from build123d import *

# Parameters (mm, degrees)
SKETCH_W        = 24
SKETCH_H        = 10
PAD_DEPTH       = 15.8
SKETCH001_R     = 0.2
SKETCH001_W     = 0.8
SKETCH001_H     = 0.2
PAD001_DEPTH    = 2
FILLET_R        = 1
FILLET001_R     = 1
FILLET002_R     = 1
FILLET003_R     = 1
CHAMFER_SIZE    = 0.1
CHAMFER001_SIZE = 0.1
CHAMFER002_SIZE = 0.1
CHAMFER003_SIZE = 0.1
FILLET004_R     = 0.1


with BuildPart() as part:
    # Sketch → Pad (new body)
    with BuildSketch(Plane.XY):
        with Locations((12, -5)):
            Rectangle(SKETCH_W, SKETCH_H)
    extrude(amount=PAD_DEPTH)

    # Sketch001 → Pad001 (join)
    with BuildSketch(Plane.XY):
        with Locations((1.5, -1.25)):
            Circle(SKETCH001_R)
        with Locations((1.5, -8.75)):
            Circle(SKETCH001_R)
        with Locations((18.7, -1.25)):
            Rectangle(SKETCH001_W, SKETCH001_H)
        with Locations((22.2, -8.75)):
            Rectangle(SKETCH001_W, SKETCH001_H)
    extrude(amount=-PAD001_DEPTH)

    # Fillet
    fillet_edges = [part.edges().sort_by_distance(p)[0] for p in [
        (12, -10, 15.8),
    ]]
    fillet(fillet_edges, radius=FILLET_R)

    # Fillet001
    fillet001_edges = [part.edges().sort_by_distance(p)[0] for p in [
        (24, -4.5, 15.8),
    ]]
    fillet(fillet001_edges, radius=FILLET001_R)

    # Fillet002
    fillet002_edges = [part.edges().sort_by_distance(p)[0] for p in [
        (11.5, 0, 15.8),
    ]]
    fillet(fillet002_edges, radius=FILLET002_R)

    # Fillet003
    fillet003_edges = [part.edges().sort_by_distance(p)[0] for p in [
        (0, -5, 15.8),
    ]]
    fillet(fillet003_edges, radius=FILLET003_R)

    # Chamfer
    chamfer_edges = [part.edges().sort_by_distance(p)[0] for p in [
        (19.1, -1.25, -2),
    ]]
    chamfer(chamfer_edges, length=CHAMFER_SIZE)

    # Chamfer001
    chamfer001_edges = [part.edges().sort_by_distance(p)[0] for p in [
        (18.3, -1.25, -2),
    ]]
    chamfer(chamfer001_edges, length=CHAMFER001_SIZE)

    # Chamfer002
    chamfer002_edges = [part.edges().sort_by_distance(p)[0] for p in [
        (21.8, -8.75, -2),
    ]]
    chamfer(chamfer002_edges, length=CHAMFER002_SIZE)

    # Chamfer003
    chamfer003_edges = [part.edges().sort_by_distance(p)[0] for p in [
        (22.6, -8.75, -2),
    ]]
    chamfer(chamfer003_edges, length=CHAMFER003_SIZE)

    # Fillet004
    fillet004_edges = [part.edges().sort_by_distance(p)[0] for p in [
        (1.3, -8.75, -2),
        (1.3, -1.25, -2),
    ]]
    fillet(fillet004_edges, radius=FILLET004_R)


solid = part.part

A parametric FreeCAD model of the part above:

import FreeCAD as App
import Part
import Sketcher
from FreeCAD import Vector


def edges_at(feature, points):
    """Names of the edges that pass closest to the given points."""
    edges = feature.Shape.Edges
    near = lambda p: min(range(len(edges)), key=lambda i: edges[i].distToShape(Part.Vertex(*p))[0])
    return sorted({f"Edge{near(p) + 1}" for p in points})

doc = App.newDocument("Part")
body = doc.addObject("PartDesign::Body", "Body")

# Sketch on XY plane
sketch1 = body.newObject("Sketcher::SketchObject", "Sketch")
sketch1.AttachmentSupport = (doc.getObject("XY_Plane"), [""])
sketch1.MapMode = "FlatFace"
sketch1.addGeometry([
    Part.LineSegment(Vector(0, 0, 0), Vector(0, -10, 0)),
    Part.LineSegment(Vector(0, -10, 0), Vector(24, -10, 0)),
    Part.LineSegment(Vector(24, -10, 0), Vector(24, 0, 0)),
    Part.LineSegment(Vector(24, 0, 0), Vector(0, 0, 0)),
], False)
sketch1.addConstraint([
    Sketcher.Constraint("Coincident", 0, 2, 1, 1),
    Sketcher.Constraint("Coincident", 1, 2, 2, 1),
    Sketcher.Constraint("Coincident", 2, 2, 3, 1),
    Sketcher.Constraint("Coincident", 3, 2, 0, 1),
    Sketcher.Constraint("Vertical", 0),
    Sketcher.Constraint("Horizontal", 1),
    Sketcher.Constraint("Vertical", 2),
    Sketcher.Constraint("Horizontal", 3),
    Sketcher.Constraint("Coincident", 3, 2, -1, 1),
    Sketcher.Constraint("DistanceX", 1, 1, 1, 2, 24.0),
    Sketcher.Constraint("DistanceY", 0, 2, 0, 1, 10.0),
])
pad1 = body.newObject("PartDesign::Pad", "Pad")
pad1.Profile = sketch1
pad1.Length = 15.8

# Sketch on XY plane
sketch2 = body.newObject("Sketcher::SketchObject", "Sketch001")
sketch2.AttachmentSupport = (doc.getObject("XY_Plane"), [""])
sketch2.MapMode = "FlatFace"
sketch2.addGeometry([
    Part.Circle(Vector(1.5, -1.25, 0), Vector(0, 0, 1), 0.2),  # 0
    Part.Circle(Vector(1.5, -8.75, 0), Vector(0, 0, 1), 0.2),  # 1
    Part.LineSegment(Vector(18.3, -1.15, 0), Vector(18.3, -1.35, 0)),  # 2
    Part.LineSegment(Vector(18.3, -1.35, 0), Vector(19.1, -1.35, 0)),  # 3
    Part.LineSegment(Vector(19.1, -1.35, 0), Vector(19.1, -1.15, 0)),  # 4
    Part.LineSegment(Vector(19.1, -1.15, 0), Vector(18.3, -1.15, 0)),  # 5
    Part.LineSegment(Vector(21.8, -8.65, 0), Vector(21.8, -8.85, 0)),  # 6
    Part.LineSegment(Vector(21.8, -8.85, 0), Vector(22.6, -8.85, 0)),  # 7
    Part.LineSegment(Vector(22.6, -8.85, 0), Vector(22.6, -8.65, 0)),  # 8
    Part.LineSegment(Vector(22.6, -8.65, 0), Vector(21.8, -8.65, 0)),  # 9
], False)
sketch2.addConstraint([
    Sketcher.Constraint("Coincident", 2, 2, 3, 1),
    Sketcher.Constraint("Coincident", 3, 2, 4, 1),
    Sketcher.Constraint("Coincident", 4, 2, 5, 1),
    Sketcher.Constraint("Coincident", 5, 2, 2, 1),
    Sketcher.Constraint("Coincident", 6, 2, 7, 1),
    Sketcher.Constraint("Coincident", 7, 2, 8, 1),
    Sketcher.Constraint("Coincident", 8, 2, 9, 1),
    Sketcher.Constraint("Coincident", 9, 2, 6, 1),
    Sketcher.Constraint("Vertical", 2),
    Sketcher.Constraint("Horizontal", 3),
    Sketcher.Constraint("Vertical", 4),
    Sketcher.Constraint("Horizontal", 5),
    Sketcher.Constraint("Vertical", 6),
    Sketcher.Constraint("Horizontal", 7),
    Sketcher.Constraint("Vertical", 8),
    Sketcher.Constraint("Horizontal", 9),
    Sketcher.Constraint("Equal", 0, 1),
    Sketcher.Constraint("Vertical", 0, 3, 1, 3),
    Sketcher.Constraint("Equal", 5, 7),
    Sketcher.Constraint("Equal", 4, 6),
    Sketcher.Constraint("Diameter", 0, 0.4),
    Sketcher.Constraint("DistanceX", 3, 1, 3, 2, 0.8),
    Sketcher.Constraint("DistanceY", 2, 2, 2, 1, 0.2),
    Sketcher.Constraint("DistanceX", -1, 1, 0, 3, 1.5),
    Sketcher.Constraint("DistanceX", -1, 1, 2, 2, 18.3),
    Sketcher.Constraint("DistanceX", -1, 1, 6, 2, 21.8),
    Sketcher.Constraint("DistanceY", 1, 3, 0, 3, 7.5),
    Sketcher.Constraint("DistanceY", 2, 2, 0, 3, 0.1),
    Sketcher.Constraint("DistanceY", 6, 2, 3, 2, 7.5),
    Sketcher.Constraint("DistanceY", 0, 3, -1, 1, 1.25),
])
pad2 = body.newObject("PartDesign::Pad", "Pad001")
pad2.Profile = sketch2
pad2.Length = 2
pad2.Reversed = True
doc.recompute()

fillet = body.newObject("PartDesign::Fillet", "Fillet")
fillet.Base = (pad2, edges_at(pad2, [(12, -10, 15.8)]))
fillet.Radius = 1
doc.recompute()

fillet2 = body.newObject("PartDesign::Fillet", "Fillet001")
fillet2.Base = (fillet, edges_at(fillet, [(24, -4.5, 15.8)]))
fillet2.Radius = 1
doc.recompute()

fillet3 = body.newObject("PartDesign::Fillet", "Fillet002")
fillet3.Base = (fillet2, edges_at(fillet2, [(11.5, 0, 15.8)]))
fillet3.Radius = 1
doc.recompute()

fillet4 = body.newObject("PartDesign::Fillet", "Fillet003")
fillet4.Base = (fillet3, edges_at(fillet3, [(0, -5, 15.8)]))
fillet4.Radius = 1
doc.recompute()

chamfer = body.newObject("PartDesign::Chamfer", "Chamfer")
chamfer.Base = (fillet4, edges_at(fillet4, [(19.1, -1.25, -2)]))
chamfer.Size = 0.1
doc.recompute()

chamfer2 = body.newObject("PartDesign::Chamfer", "Chamfer001")
chamfer2.Base = (chamfer, edges_at(chamfer, [(18.3, -1.25, -2)]))
chamfer2.Size = 0.1
doc.recompute()

chamfer3 = body.newObject("PartDesign::Chamfer", "Chamfer002")
chamfer3.Base = (chamfer2, edges_at(chamfer2, [(21.8, -8.75, -2)]))
chamfer3.Size = 0.1
doc.recompute()

chamfer4 = body.newObject("PartDesign::Chamfer", "Chamfer003")
chamfer4.Base = (chamfer3, edges_at(chamfer3, [(22.6, -8.75, -2)]))
chamfer4.Size = 0.1
doc.recompute()

fillet5 = body.newObject("PartDesign::Fillet", "Fillet004")
fillet5.Base = (chamfer4, edges_at(chamfer4, [(1.3, -8.75, -2), (1.3, -1.25, -2)]))
fillet5.Radius = 0.1

doc.recompute()
